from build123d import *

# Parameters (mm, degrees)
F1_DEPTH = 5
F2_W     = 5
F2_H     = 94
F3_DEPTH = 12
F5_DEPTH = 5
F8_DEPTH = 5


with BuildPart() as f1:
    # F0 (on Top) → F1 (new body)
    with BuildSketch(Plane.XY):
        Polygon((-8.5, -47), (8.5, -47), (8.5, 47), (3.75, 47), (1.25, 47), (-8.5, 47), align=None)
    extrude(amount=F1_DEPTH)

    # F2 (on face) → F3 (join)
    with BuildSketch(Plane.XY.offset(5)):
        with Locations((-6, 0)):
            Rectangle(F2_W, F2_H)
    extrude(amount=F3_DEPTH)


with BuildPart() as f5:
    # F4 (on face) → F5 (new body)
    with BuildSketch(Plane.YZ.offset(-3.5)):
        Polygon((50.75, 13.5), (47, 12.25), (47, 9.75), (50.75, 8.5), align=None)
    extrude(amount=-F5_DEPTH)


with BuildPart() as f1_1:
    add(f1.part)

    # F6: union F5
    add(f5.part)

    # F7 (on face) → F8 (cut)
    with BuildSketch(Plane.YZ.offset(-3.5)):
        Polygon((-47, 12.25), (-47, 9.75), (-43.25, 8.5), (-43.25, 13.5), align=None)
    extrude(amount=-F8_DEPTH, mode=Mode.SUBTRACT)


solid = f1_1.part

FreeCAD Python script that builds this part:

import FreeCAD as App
import Part
import Sketcher

doc = App.newDocument("Part")
params = doc.addObject("Spreadsheet::Sheet", "Params")
for row, (alias, value) in enumerate([
    ("sketch1_width", "17 mm"),
    ("sketch1_height", "94 mm"),
    ("pad1_length", "5 mm"),
    ("sketch2_width", "5 mm"),
    ("sketch2_height", "94 mm"),
    ("pad2_length", "12 mm"),
    ("sketch3_height", "5 mm"),
    ("sketch3_height2", "2.5 mm"),
    ("pad3_length", "5 mm"),
    ("sketch4_height", "5 mm"),
    ("sketch4_height2", "2.5 mm"),
    ("pocket1_length", "5 mm"),
], start=1):
    params.set(f"A{row}", alias)
    params.set(f"B{row}", "=" + value)
    params.setAlias(f"B{row}", alias)

body = doc.addObject("PartDesign::Body", "Body")

# Sketch on XY plane
sketch1 = doc.addObject("Sketcher::SketchObject", "Sketch")
body.addObject(sketch1)
sketch1.AttachmentSupport = (doc.XY_Plane, [""])
sketch1.MapMode = "FlatFace"
sketch1.addGeometry([
    Part.LineSegment(App.Vector(-8, -47, 0), App.Vector(8, -47, 0)),
    Part.LineSegment(App.Vector(8, -47, 0), App.Vector(8, 47, 0)),
    Part.LineSegment(App.Vector(8, 47, 0), App.Vector(-8, 47, 0)),
    Part.LineSegment(App.Vector(-8, 47, 0), App.Vector(-8, -47, 0)),
], False)
sketch1.addConstraint([
    Sketcher.Constraint("Coincident", 0, 2, 1, 1),
    Sketcher.Constraint("Coincident", 1, 2, 2, 1),
    Sketcher.Constraint("Coincident", 2, 2, 3, 1),
    Sketcher.Constraint("Coincident", 3, 2, 0, 1),
    Sketcher.Constraint("Horizontal", 0),
    Sketcher.Constraint("Vertical", 1),
    Sketcher.Constraint("Horizontal", 2),
    Sketcher.Constraint("Vertical", 3),
    Sketcher.Constraint("Symmetric", 0, 2, 2, 2, -1, 1),
    Sketcher.Constraint("DistanceX", 0, 1, 0, 2, 17.0),
    Sketcher.Constraint("DistanceY", 1, 1, 1, 2, 94.0),
])
sketch1.setExpression("Constraints[9]", "Params.sketch1_width")
sketch1.setExpression("Constraints[10]", "Params.sketch1_height")
pad1 = doc.addObject("PartDesign::Pad", "Pad")
body.addObject(pad1)
pad1.Profile = sketch1
pad1.setExpression("Length", "Params.pad1_length")

# Sketch on XY plane
sketch2 = doc.addObject("Sketcher::SketchObject", "Sketch001")
body.addObject(sketch2)
sketch2.AttachmentSupport = (doc.XY_Plane, [""])
sketch2.MapMode = "FlatFace"
sketch2.AttachmentOffset = App.Placement(App.Vector(0, 0, 5), App.Rotation())
sketch2.addGeometry([
    Part.LineSegment(App.Vector(-8, 47, 0), App.Vector(-8, -47, 0)),
    Part.LineSegment(App.Vector(-8, -47, 0), App.Vector(-4, -47, 0)),
    Part.LineSegment(App.Vector(-4, -47, 0), App.Vector(-4, 47, 0)),
    Part.LineSegment(App.Vector(-4, 47, 0), App.Vector(-8, 47, 0)),
], False)
sketch2.addConstraint([
    Sketcher.Constraint("Coincident", 0, 2, 1, 1),
    Sketcher.Constraint("Coincident", 1, 2, 2, 1),
    Sketcher.Constraint("Coincident", 2, 2, 3, 1),
    Sketcher.Constraint("Coincident", 3, 2, 0, 1),
    Sketcher.Constraint("Vertical", 0),
    Sketcher.Constraint("Horizontal", 1),
    Sketcher.Constraint("Vertical", 2),
    Sketcher.Constraint("Horizontal", 3),
    Sketcher.Constraint("DistanceX", 1, 1, 1, 2, 5.0),
    Sketcher.Constraint("DistanceY", 0, 2, 0, 1, 94.0),
    Sketcher.Constraint("DistanceY", 0, 2, -1, 1, 47.0),
    Sketcher.Constraint("DistanceX", 0, 2, -1, 1, 8.5),
])
sketch2.setExpression("Constraints[8]", "Params.sketch2_width")
sketch2.setExpression("Constraints[9]", "Params.sketch2_height")
pad2 = doc.addObject("PartDesign::Pad", "Pad001")
body.addObject(pad2)
pad2.Profile = sketch2
pad2.setExpression("Length", "Params.pad2_length")
body2 = doc.addObject("PartDesign::Body", "Body001")

# Sketch on YZ plane
sketch3 = doc.addObject("Sketcher::SketchObject", "Sketch002")
body2.addObject(sketch3)
sketch3.AttachmentSupport = (doc.getObject("YZ_Plane001"), [""])
sketch3.MapMode = "FlatFace"
sketch3.AttachmentOffset = App.Placement(App.Vector(0, 0, -3.5), App.Rotation())
sketch3.addGeometry([
    Part.LineSegment(App.Vector(50.8, 13.5, 0), App.Vector(47, 12.2, 0)),
    Part.LineSegment(App.Vector(47, 12.2, 0), App.Vector(47, 9.8, 0)),
    Part.LineSegment(App.Vector(47, 9.8, 0), App.Vector(50.8, 8.5, 0)),
    Part.LineSegment(App.Vector(50.8, 8.5, 0), App.Vector(50.8, 13.5, 0)),
], False)
sketch3.addConstraint([
    Sketcher.Constraint("Coincident", 0, 2, 1, 1),
    Sketcher.Constraint("Coincident", 1, 2, 2, 1),
    Sketcher.Constraint("Coincident", 2, 2, 3, 1),
    Sketcher.Constraint("Coincident", 3, 2, 0, 1),
    Sketcher.Constraint("Vertical", 1),
    Sketcher.Constraint("Vertical", 3),
    Sketcher.Constraint("Equal", 0, 2),
    Sketcher.Constraint("DistanceY", 3, 1, 3, 2, 5.0),
    Sketcher.Constraint("DistanceY", 1, 2, 1, 1, 2.5),
    Sketcher.Constraint("DistanceX", -1, 1, 0, 2, 47.0),
    Sketcher.Constraint("DistanceY", -1, 1, 2, 2, 8.5),
    Sketcher.Constraint("DistanceX", -1, 1, 2, 2, 50.75),
])
sketch3.setExpression("Constraints[7]", "Params.sketch3_height")
sketch3.setExpression("Constraints[8]", "Params.sketch3_height2")
pad3 = doc.addObject("PartDesign::Pad", "Pad002")
body2.addObject(pad3)
pad3.Profile = sketch3
pad3.setExpression("Length", "Params.pad3_length")
pad3.Reversed = True
doc.recompute()

boolean = doc.addObject("PartDesign::Boolean", "Boolean")
body.addObject(boolean)
boolean.Type = "Fuse"
boolean.addObjects([body2])

# Sketch on YZ plane
sketch4 = doc.addObject("Sketcher::SketchObject", "Sketch003")
body.addObject(sketch4)
sketch4.AttachmentSupport = (doc.YZ_Plane, [""])
sketch4.MapMode = "FlatFace"
sketch4.AttachmentOffset = App.Placement(App.Vector(0, 0, -3.5), App.Rotation())
sketch4.addGeometry([
    Part.LineSegment(App.Vector(-47, 12.2, 0), App.Vector(-47, 9.8, 0)),
    Part.LineSegment(App.Vector(-47, 9.8, 0), App.Vector(-43.2, 8.5, 0)),
    Part.LineSegment(App.Vector(-43.2, 8.5, 0), App.Vector(-43.2, 13.5, 0)),
    Part.LineSegment(App.Vector(-43.2, 13.5, 0), App.Vector(-47, 12.2, 0)),
], False)
sketch4.addConstraint([
    Sketcher.Constraint("Coincident", 0, 2, 1, 1),
    Sketcher.Constraint("Coincident", 1, 2, 2, 1),
    Sketcher.Constraint("Coincident", 2, 2, 3, 1),
    Sketcher.Constraint("Coincident", 3, 2, 0, 1),
    Sketcher.Constraint("Vertical", 0),
    Sketcher.Constraint("Vertical", 2),
    Sketcher.Constraint("Equal", 1, 3),
    Sketcher.Constraint("DistanceY", 2, 1, 2, 2, 5.0),
    Sketcher.Constraint("DistanceY", 0, 2, 0, 1, 2.5),
    Sketcher.Constraint("DistanceX", 0, 2, -1, 1, 47.0),
    Sketcher.Constraint("DistanceY", -1, 1, 1, 2, 8.5),
    Sketcher.Constraint("DistanceX", 1, 2, -1, 1, 43.25),
])
sketch4.setExpression("Constraints[7]", "Params.sketch4_height")
sketch4.setExpression("Constraints[8]", "Params.sketch4_height2")
pocket1 = doc.addObject("PartDesign::Pocket", "Pocket")
body.addObject(pocket1)
pocket1.Profile = sketch4
pocket1.setExpression("Length", "Params.pocket1_length")

doc.recompute()
